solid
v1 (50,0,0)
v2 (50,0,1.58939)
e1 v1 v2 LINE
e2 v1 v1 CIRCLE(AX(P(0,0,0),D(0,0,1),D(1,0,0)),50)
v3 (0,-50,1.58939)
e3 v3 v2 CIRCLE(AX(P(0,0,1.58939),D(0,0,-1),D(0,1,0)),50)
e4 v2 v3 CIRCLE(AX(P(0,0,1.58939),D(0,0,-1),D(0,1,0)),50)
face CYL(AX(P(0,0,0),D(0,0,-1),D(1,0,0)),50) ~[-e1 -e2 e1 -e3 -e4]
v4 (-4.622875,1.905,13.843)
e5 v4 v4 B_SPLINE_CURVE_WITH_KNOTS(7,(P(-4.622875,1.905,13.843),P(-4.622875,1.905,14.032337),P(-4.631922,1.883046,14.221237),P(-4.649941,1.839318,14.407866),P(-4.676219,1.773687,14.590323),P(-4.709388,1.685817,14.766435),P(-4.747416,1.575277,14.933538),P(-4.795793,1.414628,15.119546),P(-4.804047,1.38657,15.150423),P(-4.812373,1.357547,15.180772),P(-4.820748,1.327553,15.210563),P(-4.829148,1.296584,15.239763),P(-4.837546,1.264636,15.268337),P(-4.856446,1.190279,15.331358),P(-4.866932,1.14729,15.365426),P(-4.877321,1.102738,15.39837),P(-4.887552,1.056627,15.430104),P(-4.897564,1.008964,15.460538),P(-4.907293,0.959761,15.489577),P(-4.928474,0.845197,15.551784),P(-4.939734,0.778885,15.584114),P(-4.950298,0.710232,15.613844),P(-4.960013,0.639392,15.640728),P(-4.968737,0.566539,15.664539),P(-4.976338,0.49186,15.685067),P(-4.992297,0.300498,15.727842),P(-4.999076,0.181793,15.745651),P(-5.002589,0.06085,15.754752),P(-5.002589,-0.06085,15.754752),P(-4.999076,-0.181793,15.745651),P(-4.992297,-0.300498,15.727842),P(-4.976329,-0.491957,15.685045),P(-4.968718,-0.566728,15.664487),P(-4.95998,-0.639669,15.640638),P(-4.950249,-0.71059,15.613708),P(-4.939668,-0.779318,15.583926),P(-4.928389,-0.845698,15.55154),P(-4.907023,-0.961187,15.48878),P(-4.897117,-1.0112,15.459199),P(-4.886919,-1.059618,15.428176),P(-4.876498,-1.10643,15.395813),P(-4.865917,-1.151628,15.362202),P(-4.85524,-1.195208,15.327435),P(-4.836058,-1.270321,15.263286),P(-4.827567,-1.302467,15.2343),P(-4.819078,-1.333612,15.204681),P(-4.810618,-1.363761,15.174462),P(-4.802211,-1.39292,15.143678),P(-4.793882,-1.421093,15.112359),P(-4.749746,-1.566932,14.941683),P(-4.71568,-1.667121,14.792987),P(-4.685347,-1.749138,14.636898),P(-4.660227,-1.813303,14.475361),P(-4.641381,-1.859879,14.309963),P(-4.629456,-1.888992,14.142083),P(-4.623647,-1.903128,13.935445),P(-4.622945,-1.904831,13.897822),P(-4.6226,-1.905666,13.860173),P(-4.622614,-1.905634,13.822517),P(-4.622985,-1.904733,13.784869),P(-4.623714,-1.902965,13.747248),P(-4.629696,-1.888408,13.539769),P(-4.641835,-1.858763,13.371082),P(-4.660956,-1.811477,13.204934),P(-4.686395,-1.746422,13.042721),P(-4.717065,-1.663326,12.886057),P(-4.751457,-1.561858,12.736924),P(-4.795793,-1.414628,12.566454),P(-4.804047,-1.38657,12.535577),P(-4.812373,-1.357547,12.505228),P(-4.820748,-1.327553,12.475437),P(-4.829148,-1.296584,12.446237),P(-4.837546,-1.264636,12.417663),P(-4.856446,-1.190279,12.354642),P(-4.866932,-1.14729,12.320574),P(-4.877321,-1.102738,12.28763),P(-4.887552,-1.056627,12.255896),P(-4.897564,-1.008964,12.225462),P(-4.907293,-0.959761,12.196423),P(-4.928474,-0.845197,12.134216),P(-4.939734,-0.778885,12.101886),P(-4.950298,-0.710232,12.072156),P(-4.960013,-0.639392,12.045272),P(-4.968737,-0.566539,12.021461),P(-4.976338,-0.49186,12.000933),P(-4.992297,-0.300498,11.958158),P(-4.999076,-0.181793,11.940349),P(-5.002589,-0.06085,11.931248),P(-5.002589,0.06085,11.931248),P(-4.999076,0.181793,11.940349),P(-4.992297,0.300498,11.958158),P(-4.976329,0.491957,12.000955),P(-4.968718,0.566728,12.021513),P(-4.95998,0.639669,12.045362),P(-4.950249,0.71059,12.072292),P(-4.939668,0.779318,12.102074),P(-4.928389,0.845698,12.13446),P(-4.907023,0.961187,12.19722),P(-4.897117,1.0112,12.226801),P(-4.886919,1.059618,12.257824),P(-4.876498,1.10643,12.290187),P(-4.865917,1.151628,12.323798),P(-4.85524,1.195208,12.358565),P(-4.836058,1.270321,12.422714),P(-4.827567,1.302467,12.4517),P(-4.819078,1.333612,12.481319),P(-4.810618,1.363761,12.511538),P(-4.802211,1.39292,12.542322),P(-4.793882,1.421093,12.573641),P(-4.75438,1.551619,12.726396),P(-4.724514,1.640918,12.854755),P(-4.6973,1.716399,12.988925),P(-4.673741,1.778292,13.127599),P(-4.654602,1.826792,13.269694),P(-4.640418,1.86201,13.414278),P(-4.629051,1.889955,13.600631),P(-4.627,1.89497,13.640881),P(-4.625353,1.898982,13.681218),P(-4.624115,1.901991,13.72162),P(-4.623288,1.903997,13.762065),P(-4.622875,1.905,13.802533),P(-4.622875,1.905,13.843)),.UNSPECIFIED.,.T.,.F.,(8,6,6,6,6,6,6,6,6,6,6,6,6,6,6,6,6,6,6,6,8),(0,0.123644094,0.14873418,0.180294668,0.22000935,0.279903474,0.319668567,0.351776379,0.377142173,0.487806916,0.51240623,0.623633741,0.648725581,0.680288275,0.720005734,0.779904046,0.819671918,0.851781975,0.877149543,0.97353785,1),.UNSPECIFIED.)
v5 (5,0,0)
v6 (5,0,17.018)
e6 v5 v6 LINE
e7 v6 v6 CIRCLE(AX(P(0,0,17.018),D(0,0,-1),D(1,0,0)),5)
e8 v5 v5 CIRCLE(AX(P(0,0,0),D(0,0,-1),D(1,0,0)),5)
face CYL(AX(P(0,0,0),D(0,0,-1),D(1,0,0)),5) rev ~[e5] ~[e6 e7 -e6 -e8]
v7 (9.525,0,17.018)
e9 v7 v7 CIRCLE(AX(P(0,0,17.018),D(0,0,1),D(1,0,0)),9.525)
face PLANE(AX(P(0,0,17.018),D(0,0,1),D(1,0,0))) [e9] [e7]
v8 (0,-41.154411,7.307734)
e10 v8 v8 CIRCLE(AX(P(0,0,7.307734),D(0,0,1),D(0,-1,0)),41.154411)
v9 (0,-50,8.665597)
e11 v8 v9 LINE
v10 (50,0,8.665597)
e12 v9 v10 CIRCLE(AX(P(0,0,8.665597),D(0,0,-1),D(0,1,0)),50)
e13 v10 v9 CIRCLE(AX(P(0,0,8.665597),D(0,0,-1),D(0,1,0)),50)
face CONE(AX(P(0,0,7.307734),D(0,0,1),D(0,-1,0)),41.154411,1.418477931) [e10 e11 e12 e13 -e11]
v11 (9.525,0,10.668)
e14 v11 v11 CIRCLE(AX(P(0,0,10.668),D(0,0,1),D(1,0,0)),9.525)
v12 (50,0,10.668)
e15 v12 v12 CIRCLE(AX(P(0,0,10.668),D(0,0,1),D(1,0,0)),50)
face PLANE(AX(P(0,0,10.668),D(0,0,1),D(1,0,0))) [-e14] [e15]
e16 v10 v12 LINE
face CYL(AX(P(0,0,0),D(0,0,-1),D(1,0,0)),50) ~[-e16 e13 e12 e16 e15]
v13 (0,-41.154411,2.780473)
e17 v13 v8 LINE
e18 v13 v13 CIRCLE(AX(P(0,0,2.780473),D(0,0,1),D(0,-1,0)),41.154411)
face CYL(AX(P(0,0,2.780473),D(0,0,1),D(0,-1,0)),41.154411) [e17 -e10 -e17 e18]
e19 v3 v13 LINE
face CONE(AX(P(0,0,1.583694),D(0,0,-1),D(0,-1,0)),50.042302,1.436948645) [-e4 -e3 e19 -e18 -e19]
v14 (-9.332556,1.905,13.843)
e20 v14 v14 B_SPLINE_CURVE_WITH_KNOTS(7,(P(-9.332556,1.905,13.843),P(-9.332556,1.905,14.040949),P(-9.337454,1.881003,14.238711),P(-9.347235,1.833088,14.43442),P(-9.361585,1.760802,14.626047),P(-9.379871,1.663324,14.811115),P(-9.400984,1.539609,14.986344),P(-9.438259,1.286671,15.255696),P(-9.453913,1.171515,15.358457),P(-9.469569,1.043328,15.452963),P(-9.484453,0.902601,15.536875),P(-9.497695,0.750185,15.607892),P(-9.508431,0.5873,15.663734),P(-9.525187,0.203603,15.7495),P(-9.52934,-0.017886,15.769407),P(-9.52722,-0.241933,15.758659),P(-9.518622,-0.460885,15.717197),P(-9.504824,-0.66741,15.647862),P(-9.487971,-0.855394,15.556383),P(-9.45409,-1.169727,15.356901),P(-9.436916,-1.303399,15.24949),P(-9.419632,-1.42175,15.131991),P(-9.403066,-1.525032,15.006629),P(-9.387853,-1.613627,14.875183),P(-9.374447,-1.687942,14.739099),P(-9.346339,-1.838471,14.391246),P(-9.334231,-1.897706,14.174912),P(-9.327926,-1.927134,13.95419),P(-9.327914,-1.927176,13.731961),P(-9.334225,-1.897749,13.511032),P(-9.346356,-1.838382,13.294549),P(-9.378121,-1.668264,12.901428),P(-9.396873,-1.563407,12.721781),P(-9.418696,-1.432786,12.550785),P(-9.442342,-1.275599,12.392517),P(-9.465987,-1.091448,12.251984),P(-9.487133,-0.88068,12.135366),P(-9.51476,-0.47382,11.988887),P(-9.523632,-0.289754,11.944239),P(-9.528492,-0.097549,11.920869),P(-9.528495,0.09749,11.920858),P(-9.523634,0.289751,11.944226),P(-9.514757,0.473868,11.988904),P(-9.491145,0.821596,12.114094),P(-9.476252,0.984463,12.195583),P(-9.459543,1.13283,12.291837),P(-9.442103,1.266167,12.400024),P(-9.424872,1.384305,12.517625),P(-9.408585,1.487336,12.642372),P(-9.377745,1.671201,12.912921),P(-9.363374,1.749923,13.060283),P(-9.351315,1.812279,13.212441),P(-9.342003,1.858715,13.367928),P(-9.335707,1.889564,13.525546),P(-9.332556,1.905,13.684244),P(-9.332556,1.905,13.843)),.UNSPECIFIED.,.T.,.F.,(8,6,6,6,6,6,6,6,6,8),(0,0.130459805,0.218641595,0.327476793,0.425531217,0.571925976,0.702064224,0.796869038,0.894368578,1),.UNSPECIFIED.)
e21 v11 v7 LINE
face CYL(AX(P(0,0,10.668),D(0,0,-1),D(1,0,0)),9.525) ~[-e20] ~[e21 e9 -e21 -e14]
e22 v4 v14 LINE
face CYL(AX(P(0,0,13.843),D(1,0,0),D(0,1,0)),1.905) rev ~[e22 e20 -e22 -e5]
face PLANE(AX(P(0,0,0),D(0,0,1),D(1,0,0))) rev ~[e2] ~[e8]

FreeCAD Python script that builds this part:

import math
import FreeCAD as App
import Part
import Sketcher
Q = App.Units.Quantity

doc = App.newDocument("Part")
params = doc.addObject("Spreadsheet::Sheet", "Params")
for row, (alias, value) in enumerate([
    ("pad1_length", "0.42 in"),
    ("sketch2_diameter", "0.75 in"),
    ("pad2_length", "0.25 in"),
    ("sketch3_diameter", "0.15 in"),
    ("pocket1_length", "1 in"),
    ("pocket2_length", "4 in"),
    ("sketch5_height", "0.046 in"),
    ("groove_angle", "360 deg"),
], start=1):
    params.set(f"A{row}", alias)
    params.set(f"B{row}", "=" + value)
    params.setAlias(f"B{row}", alias)

body = doc.addObject("PartDesign::Body", "Body")

sketch1 = body.newObject("Sketcher::SketchObject", "Sketch")
sketch1.AttachmentSupport = (doc.getObject("XY_Plane"), [""])
sketch1.MapMode = "FlatFace"
sketch1.addGeometry(Part.Circle(App.Vector(0, 0, 0), App.Vector(0, 0, 1), 50), False)
sketch1.addConstraint([
    Sketcher.Constraint("Coincident", 0, 3, -1, 1),
    Sketcher.Constraint("Diameter", 0, Q("100 mm")),
])
pad1 = body.newObject("PartDesign::Pad", "Pad")
pad1.Profile = sketch1
pad1.setExpression("Length", "Params.pad1_length")

sketch2 = body.newObject("Sketcher::SketchObject", "Sketch001")
sketch2.AttachmentSupport = (doc.getObject("XY_Plane"), [""])
sketch2.MapMode = "FlatFace"
sketch2.AttachmentOffset = App.Placement(App.Vector(0, 0, 0.42 * 25.4), App.Rotation())
sketch2.addGeometry(Part.Circle(App.Vector(0, 0, 0), App.Vector(0, 0, 1), 10), False)
sketch2.addConstraint([
    Sketcher.Constraint("Coincident", 0, 3, -1, 1),
    Sketcher.Constraint("Diameter", 0, Q("0.75 in")),
])
sketch2.setExpression("Constraints[1]", "Params.sketch2_diameter")
pad2 = body.newObject("PartDesign::Pad", "Pad001")
pad2.Profile = sketch2
pad2.setExpression("Length", "Params.pad2_length")

sketch3 = body.newObject("Sketcher::SketchObject", "Sketch002")
sketch3.AttachmentSupport = (doc.getObject("YZ_Plane"), [""])
sketch3.MapMode = "FlatFace"
sketch3.addGeometry(Part.Circle(App.Vector(0, 13.8, 0), App.Vector(0, 0, 1), 1.9), False)
sketch3.addConstraint([
    Sketcher.Constraint("PointOnObject", 0, 3, -2),
    Sketcher.Constraint("Diameter", 0, Q("0.15 in")),
    Sketcher.Constraint("DistanceY", -1, 1, 0, 3, Q("0.545 in")),
])
sketch3.setExpression("Constraints[1]", "Params.sketch3_diameter")
pocket1 = body.newObject("PartDesign::Pocket", "Pocket")
pocket1.Profile = sketch3
pocket1.setExpression("Length", "Params.pocket1_length")

sketch4 = body.newObject("Sketcher::SketchObject", "Sketch003")
sketch4.AttachmentSupport = (doc.getObject("XY_Plane"), [""])
sketch4.MapMode = "FlatFace"
sketch4.addGeometry(Part.Circle(App.Vector(0, 0, 0), App.Vector(0, 0, 1), 5), False)
sketch4.addConstraint([
    Sketcher.Constraint("Coincident", 0, 3, -1, 1),
    Sketcher.Constraint("Diameter", 0, Q("10 mm")),
])
pocket2 = body.newObject("PartDesign::Pocket", "Pocket001")
pocket2.Profile = sketch4
pocket2.setExpression("Length", "Params.pocket2_length")
pocket2.Reversed = True

sketch5 = body.newObject("Sketcher::SketchObject", "Sketch004")
sketch5.AttachmentSupport = (doc.getObject("YZ_Plane"), [""])
sketch5.MapMode = "FlatFace"
sketch5.addGeometry([
    Part.LineSegment(App.Vector(-50.1, 8.7, 0), App.Vector(-50.1, 7.5, 0)),
    Part.ArcOfCircle(Part.Circle(App.Vector(-49.3, 5.1, 0), App.Vector(0, 0, 1), 2.5), math.radians(108), math.radians(252)),
    Part.LineSegment(App.Vector(-50, 2.8, 0), App.Vector(-50, 1.6, 0)),
    Part.LineSegment(App.Vector(-50, 1.6, 0), App.Vector(-41.2, 2.8, 0)),
    Part.LineSegment(App.Vector(-41.2, 2.8, 0), App.Vector(-41.2, 7.3, 0)),
    Part.LineSegment(App.Vector(-41.2, 7.3, 0), App.Vector(-50.1, 8.7, 0)),
], False)
sketch5.addConstraint([
    Sketcher.Constraint("Coincident", 0, 2, 1, 1),
    Sketcher.Constraint("Coincident", 1, 2, 2, 1),
    Sketcher.Constraint("Coincident", 2, 2, 3, 1),
    Sketcher.Constraint("Coincident", 3, 2, 4, 1),
    Sketcher.Constraint("Coincident", 4, 2, 5, 1),
    Sketcher.Constraint("Coincident", 5, 2, 0, 1),
    Sketcher.Constraint("Vertical", 0),
    Sketcher.Constraint("Vertical", 2),
    Sketcher.Constraint("Vertical", 4),
    Sketcher.Constraint("DistanceY", 2, 2, 2, 1, Q("0.046 in")),
    Sketcher.Constraint("Radius", 1, Q("2.5 mm")),
    Sketcher.Constraint("DistanceY", 4, 1, 4, 2, Q("4.527261 mm")),
    Sketcher.Constraint("DistanceX", 1, 2, -1, 1, Q("50.042302 mm")),
    Sketcher.Constraint("DistanceY", 1, 3, 4, 2, Q("2.176499 mm")),
    Sketcher.Constraint("Distance", 5, Q("9.016379 mm")),
    Sketcher.Constraint("DistanceY", 0, 2, 0, 1, Q("1.173327 mm")),
    Sketcher.Constraint("DistanceX", 1, 3, -1, 1, Q("49.274389 mm")),
    Sketcher.Constraint("DistanceX", 3, 2, -1, 1, Q("41.154411 mm")),
    Sketcher.Constraint("DistanceY", -1, 1, 5, 2, Q("8.67579 mm")),
])
sketch5.setExpression("Constraints[9]", "Params.sketch5_height")
groove = body.newObject("PartDesign::Groove", "Groove")
groove.Profile = sketch5
groove.ReferenceAxis = (sketch5, ["V_Axis"])
groove.setExpression("Angle", "Params.groove_angle")

doc.recompute()
